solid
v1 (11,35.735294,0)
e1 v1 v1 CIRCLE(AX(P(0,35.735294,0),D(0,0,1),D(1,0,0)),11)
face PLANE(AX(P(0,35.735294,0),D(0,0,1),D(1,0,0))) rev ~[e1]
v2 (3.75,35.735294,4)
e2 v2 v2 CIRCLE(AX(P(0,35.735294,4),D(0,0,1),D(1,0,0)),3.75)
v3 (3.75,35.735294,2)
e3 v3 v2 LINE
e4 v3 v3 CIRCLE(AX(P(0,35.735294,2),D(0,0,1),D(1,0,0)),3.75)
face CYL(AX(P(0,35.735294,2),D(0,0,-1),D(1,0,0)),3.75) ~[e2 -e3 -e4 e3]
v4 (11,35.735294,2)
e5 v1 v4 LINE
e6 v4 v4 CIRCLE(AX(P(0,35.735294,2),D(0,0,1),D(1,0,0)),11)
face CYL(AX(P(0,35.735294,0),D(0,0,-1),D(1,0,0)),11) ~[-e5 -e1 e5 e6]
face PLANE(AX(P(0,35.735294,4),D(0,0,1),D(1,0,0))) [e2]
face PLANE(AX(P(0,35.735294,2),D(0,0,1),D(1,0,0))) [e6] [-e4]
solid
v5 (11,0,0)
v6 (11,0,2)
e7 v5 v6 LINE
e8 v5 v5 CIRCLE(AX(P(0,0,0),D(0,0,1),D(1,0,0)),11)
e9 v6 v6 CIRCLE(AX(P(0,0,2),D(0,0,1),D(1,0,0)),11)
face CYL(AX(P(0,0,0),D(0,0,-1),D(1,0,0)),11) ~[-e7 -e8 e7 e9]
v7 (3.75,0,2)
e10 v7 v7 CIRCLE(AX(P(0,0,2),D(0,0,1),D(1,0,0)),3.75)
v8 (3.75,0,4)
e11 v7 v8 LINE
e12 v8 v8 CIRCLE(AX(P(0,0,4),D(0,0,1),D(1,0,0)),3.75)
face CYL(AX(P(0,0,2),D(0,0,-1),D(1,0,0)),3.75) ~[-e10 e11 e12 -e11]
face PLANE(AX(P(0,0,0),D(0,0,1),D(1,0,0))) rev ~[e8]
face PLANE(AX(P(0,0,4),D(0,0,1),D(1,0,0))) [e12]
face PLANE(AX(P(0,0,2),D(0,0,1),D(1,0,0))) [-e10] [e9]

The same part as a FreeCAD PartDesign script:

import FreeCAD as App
import Part
import Sketcher
from FreeCAD import Vector
Q = App.Units.Quantity

doc = App.newDocument("Part")
params = doc.addObject("Spreadsheet::Sheet", "Params")
for row, (alias, value) in enumerate([
    ("sketch1_diameter", "22 mm"),
    ("pad1_length", "2 mm"),
    ("sketch2_diameter", "7.5 mm"),
    ("pad2_length", "2 mm"),
], start=1):
    params.set(f"A{row}", alias)
    params.set(f"B{row}", "=" + value)
    params.setAlias(f"B{row}", alias)

body = doc.addObject("PartDesign::Body", "Body")
body.AllowCompound = True

# Sketch on XY plane
sketch1 = body.newObject("Sketcher::SketchObject", "Sketch")
sketch1.AttachmentSupport = (doc.getObject("XY_Plane"), [""])
sketch1.MapMode = "FlatFace"
sketch1.addGeometry(Part.Circle(Vector(0, 0, 0), Vector(0, 0, 1), 11), False)
sketch1.addGeometry(Part.Circle(Vector(0, 36, 0), Vector(0, 0, 1), 11), False)
sketch1.addConstraint(Sketcher.Constraint("Coincident", 0, 3, -1, 1))
sketch1.addConstraint(Sketcher.Constraint("Equal", 0, 1))
sketch1.addConstraint(Sketcher.Constraint("PointOnObject", 1, 3, -2))
sketch1.addConstraint(Sketcher.Constraint("Diameter", 0, Q("22 mm")))
sketch1.addConstraint(Sketcher.Constraint("DistanceY", -1, 1, 1, 3, Q("35.735294 mm")))
sketch1.setExpression("Constraints[3]", "Params.sketch1_diameter")
pad1 = body.newObject("PartDesign::Pad", "Pad")
pad1.Profile = sketch1
pad1.setExpression("Length", "Params.pad1_length")

# Sketch on XY plane
sketch2 = body.newObject("Sketcher::SketchObject", "Sketch001")
sketch2.AttachmentSupport = (doc.getObject("XY_Plane"), [""])
sketch2.MapMode = "FlatFace"
sketch2.AttachmentOffset = App.Placement(Vector(0, 0, 2), App.Rotation())
sketch2.addGeometry(Part.Circle(Vector(0, 0, 0), Vector(0, 0, 1), 3.8), False)
sketch2.addGeometry(Part.Circle(Vector(0, 35.7, 0), Vector(0, 0, 1), 3.8), False)
sketch2.addConstraint(Sketcher.Constraint("Coincident", 0, 3, -1, 1))
sketch2.addConstraint(Sketcher.Constraint("Equal", 0, 1))
sketch2.addConstraint(Sketcher.Constraint("PointOnObject", 1, 3, -2))
sketch2.addConstraint(Sketcher.Constraint("Diameter", 0, Q("7.5 mm")))
sketch2.addConstraint(Sketcher.Constraint("DistanceY", -1, 1, 1, 3, Q("35.735294 mm")))
sketch2.setExpression("Constraints[3]", "Params.sketch2_diameter")
pad2 = body.newObject("PartDesign::Pad", "Pad001")
pad2.Profile = sketch2
pad2.setExpression("Length", "Params.pad2_length")

doc.recompute()
